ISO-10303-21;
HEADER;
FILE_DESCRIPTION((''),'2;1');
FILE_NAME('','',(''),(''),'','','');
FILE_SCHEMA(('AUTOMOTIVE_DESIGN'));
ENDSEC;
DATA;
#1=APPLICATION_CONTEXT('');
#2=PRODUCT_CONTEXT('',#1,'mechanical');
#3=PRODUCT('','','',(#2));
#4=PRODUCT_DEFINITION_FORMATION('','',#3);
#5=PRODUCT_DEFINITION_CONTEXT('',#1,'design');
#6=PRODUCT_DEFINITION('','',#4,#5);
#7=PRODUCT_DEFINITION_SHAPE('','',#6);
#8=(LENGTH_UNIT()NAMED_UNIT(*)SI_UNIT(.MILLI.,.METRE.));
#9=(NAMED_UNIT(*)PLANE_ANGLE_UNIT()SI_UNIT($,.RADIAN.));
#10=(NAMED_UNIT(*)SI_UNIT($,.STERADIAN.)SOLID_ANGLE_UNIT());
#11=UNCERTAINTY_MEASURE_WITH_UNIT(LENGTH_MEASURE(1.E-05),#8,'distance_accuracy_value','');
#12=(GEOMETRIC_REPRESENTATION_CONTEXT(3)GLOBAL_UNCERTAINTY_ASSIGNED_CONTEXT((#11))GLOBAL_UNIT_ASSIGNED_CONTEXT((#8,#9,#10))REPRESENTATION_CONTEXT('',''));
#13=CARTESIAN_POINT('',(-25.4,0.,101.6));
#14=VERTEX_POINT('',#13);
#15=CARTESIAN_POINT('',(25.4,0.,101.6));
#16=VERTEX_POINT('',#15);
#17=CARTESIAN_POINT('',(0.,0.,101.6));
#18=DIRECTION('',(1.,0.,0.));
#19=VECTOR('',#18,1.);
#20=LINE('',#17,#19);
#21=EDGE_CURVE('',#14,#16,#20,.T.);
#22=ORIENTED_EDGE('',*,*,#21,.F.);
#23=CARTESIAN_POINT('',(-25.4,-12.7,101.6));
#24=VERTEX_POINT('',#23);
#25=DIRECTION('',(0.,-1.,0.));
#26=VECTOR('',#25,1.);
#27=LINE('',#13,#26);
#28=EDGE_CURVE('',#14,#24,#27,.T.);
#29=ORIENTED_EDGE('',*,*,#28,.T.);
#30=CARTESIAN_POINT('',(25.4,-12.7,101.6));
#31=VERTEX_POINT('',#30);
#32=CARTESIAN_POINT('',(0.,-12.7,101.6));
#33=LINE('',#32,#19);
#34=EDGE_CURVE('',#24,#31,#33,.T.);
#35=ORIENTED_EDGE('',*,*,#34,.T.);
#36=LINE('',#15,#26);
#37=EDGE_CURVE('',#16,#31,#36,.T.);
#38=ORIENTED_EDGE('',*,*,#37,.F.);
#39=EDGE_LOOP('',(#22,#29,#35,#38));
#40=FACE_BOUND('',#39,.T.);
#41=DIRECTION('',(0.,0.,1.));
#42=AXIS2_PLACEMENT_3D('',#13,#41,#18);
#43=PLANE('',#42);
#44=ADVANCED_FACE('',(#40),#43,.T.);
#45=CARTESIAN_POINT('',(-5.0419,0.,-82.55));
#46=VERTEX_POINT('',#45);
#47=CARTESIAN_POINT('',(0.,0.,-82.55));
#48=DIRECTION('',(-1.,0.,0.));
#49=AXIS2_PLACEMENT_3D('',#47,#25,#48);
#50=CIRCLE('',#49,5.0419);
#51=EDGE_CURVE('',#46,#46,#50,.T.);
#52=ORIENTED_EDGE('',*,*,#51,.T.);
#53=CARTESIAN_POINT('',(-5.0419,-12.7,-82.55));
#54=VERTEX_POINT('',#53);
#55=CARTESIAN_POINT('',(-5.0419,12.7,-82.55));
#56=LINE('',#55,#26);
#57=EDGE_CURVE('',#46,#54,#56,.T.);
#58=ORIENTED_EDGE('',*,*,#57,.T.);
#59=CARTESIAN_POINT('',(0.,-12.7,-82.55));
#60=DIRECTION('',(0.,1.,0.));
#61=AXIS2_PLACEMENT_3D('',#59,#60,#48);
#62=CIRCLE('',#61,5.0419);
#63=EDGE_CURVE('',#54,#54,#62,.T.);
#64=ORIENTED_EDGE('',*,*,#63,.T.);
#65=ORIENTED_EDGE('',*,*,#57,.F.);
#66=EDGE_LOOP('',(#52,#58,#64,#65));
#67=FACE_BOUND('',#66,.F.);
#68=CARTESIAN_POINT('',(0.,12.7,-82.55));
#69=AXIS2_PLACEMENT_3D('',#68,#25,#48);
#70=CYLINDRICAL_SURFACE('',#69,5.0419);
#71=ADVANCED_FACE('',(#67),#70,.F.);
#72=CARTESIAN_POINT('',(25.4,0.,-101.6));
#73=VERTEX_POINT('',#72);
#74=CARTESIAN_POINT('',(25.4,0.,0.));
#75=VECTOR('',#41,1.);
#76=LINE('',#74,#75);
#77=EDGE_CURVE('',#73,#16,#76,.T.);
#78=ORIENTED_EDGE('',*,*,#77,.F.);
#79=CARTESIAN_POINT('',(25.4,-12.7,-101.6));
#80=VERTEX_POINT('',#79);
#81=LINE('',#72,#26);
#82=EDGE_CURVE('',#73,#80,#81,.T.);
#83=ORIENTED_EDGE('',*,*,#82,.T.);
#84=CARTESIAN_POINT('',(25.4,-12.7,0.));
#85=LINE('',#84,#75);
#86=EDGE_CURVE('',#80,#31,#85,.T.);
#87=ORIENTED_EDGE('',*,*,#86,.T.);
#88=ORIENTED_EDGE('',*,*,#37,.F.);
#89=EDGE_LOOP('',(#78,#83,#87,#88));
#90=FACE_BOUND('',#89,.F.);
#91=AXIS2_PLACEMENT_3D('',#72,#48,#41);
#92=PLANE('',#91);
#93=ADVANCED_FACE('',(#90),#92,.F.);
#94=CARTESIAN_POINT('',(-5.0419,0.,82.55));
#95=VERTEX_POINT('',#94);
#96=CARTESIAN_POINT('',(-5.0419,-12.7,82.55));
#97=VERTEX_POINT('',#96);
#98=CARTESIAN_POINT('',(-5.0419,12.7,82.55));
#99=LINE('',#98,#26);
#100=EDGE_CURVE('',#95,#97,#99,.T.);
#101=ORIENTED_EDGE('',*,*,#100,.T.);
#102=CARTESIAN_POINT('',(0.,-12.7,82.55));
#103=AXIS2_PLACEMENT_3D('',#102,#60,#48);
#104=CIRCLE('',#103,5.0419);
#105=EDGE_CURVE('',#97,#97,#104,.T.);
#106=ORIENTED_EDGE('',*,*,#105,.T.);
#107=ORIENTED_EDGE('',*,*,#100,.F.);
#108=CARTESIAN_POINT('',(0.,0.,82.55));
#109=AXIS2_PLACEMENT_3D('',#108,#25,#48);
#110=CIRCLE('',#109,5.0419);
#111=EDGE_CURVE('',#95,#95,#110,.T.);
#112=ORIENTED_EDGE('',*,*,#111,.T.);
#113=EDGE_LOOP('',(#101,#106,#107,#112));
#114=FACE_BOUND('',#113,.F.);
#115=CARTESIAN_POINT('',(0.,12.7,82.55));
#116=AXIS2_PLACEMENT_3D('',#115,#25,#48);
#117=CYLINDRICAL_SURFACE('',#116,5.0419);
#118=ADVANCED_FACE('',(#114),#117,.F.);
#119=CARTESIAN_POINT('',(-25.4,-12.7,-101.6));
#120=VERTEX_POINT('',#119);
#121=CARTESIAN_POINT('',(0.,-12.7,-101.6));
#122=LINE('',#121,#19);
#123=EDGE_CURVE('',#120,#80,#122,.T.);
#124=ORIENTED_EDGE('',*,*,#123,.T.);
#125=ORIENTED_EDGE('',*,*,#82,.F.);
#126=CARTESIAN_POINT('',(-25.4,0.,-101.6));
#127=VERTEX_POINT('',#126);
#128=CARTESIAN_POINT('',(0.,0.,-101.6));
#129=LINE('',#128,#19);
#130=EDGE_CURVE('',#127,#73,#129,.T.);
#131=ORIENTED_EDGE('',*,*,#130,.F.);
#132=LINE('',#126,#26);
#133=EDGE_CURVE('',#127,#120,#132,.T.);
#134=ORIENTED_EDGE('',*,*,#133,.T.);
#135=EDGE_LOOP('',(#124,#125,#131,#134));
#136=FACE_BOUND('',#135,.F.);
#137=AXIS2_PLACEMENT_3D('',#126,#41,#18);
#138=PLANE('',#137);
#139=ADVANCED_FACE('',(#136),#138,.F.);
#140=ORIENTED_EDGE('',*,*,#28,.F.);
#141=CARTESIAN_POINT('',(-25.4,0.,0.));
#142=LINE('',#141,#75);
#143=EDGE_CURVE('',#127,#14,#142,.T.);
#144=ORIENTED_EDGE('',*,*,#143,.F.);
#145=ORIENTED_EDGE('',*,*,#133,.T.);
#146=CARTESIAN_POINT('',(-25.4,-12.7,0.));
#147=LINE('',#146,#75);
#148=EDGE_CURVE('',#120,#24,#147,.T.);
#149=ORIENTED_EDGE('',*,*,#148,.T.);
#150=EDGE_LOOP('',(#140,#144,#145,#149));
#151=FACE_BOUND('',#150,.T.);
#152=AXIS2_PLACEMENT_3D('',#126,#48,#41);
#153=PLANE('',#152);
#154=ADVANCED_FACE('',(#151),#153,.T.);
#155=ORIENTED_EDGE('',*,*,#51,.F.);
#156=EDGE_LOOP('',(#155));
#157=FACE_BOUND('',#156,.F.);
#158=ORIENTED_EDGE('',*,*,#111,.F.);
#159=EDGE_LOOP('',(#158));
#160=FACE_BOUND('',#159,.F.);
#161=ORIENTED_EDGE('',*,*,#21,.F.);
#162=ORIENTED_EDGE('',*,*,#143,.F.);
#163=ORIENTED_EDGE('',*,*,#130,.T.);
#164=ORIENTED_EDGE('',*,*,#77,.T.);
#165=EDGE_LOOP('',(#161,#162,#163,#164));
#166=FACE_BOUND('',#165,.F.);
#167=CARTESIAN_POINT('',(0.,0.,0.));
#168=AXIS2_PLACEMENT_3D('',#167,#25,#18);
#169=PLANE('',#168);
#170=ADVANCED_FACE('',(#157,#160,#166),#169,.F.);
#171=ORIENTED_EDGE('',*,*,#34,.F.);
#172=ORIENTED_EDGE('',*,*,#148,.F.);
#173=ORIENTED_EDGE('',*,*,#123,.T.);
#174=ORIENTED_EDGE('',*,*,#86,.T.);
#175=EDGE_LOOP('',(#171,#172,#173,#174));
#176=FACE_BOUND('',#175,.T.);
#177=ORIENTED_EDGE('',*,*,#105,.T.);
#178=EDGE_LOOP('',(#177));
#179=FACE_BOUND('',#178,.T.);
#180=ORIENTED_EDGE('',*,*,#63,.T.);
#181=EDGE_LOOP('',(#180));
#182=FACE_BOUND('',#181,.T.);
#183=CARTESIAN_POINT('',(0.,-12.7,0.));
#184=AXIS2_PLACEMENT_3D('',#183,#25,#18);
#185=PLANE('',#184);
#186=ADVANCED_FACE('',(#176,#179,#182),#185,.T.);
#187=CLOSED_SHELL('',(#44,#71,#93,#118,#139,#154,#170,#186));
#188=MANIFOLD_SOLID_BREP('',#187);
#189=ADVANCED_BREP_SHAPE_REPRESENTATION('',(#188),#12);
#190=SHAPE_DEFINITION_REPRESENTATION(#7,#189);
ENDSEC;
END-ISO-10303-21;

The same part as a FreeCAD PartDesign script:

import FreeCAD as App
import Part
import Sketcher
from FreeCAD import Vector
Q = App.Units.Quantity

doc = App.newDocument("Part")
params = doc.addObject("Spreadsheet::Sheet", "Params")
for row, (alias, value) in enumerate([
    ("sketch1_width", "2 in"),
    ("sketch1_height", "8 in"),
    ("pad1_length", "0.5 in"),
    ("sketch2_diameter", "0.397 in"),
    ("hole_diameter", "0.397 in"),
    ("hole_depth", "0.5 in"),
], start=1):
    params.set(f"A{row}", alias)
    params.set(f"B{row}", "=" + value)
    params.setAlias(f"B{row}", alias)

body = doc.addObject("PartDesign::Body", "Body")

sketch1 = doc.addObject("Sketcher::SketchObject", "Sketch")
body.addObject(sketch1)
sketch1.AttachmentSupport = (doc.XZ_Plane, [""])
sketch1.MapMode = "FlatFace"
sketch1.addGeometry([
    Part.LineSegment(Vector(-25.4, 101.6, 0), Vector(-25.4, -101.6, 0)),
    Part.LineSegment(Vector(-25.4, -101.6, 0), Vector(25.4, -101.6, 0)),
    Part.LineSegment(Vector(25.4, -101.6, 0), Vector(25.4, 101.6, 0)),
    Part.LineSegment(Vector(25.4, 101.6, 0), Vector(-25.4, 101.6, 0)),
], False)
sketch1.addConstraint([
    Sketcher.Constraint("Coincident", 0, 2, 1, 1),
    Sketcher.Constraint("Coincident", 1, 2, 2, 1),
    Sketcher.Constraint("Coincident", 2, 2, 3, 1),
    Sketcher.Constraint("Coincident", 3, 2, 0, 1),
    Sketcher.Constraint("Vertical", 0),
    Sketcher.Constraint("Horizontal", 1),
    Sketcher.Constraint("Vertical", 2),
    Sketcher.Constraint("Horizontal", 3),
    Sketcher.Constraint("Symmetric", 0, 2, 2, 2, -1, 1),
    Sketcher.Constraint("DistanceX", 1, 1, 1, 2, Q("2 in")),
    Sketcher.Constraint("DistanceY", 0, 2, 0, 1, Q("8 in")),
])
sketch1.setExpression("Constraints[9]", "Params.sketch1_width")
sketch1.setExpression("Constraints[10]", "Params.sketch1_height")
pad1 = doc.addObject("PartDesign::Pad", "Pad")
body.addObject(pad1)
pad1.Profile = sketch1
pad1.setExpression("Length", "Params.pad1_length")

sketch2 = doc.addObject("Sketcher::SketchObject", "Sketch001")
body.addObject(sketch2)
sketch2.AttachmentSupport = (doc.XZ_Plane, [""])
sketch2.MapMode = "FlatFace"
sketch2.addGeometry([
    Part.Circle(Vector(0, 82.55, 0), Vector(0, 0, 1), 5.0419),
    Part.Circle(Vector(0, -82.55, 0), Vector(0, 0, 1), 5.0419),
], False)
sketch2.addConstraint([
    Sketcher.Constraint("Equal", 0, 1),
    Sketcher.Constraint("Symmetric", 0, 3, 1, 3, -1, 1),
    Sketcher.Constraint("PointOnObject", 0, 3, -2),
    Sketcher.Constraint("Diameter", 0, Q("0.397 in")),
    Sketcher.Constraint("DistanceY", 1, 3, 0, 3, Q("6.5 in")),
])
sketch2.setExpression("Constraints[3]", "Params.sketch2_diameter")
doc.recompute()
hole = doc.addObject("PartDesign::Hole", "Hole")
body.addObject(hole)
hole.Profile = sketch2
hole.ThreadType = "None"
hole.setExpression("Diameter", "Params.hole_diameter")
hole.DepthType = "Dimension"
hole.setExpression("Depth", "Params.hole_depth")
hole.DrillPoint = "Angled"
hole.DrillPointAngle = 118
hole.Reversed = True

doc.recompute()
